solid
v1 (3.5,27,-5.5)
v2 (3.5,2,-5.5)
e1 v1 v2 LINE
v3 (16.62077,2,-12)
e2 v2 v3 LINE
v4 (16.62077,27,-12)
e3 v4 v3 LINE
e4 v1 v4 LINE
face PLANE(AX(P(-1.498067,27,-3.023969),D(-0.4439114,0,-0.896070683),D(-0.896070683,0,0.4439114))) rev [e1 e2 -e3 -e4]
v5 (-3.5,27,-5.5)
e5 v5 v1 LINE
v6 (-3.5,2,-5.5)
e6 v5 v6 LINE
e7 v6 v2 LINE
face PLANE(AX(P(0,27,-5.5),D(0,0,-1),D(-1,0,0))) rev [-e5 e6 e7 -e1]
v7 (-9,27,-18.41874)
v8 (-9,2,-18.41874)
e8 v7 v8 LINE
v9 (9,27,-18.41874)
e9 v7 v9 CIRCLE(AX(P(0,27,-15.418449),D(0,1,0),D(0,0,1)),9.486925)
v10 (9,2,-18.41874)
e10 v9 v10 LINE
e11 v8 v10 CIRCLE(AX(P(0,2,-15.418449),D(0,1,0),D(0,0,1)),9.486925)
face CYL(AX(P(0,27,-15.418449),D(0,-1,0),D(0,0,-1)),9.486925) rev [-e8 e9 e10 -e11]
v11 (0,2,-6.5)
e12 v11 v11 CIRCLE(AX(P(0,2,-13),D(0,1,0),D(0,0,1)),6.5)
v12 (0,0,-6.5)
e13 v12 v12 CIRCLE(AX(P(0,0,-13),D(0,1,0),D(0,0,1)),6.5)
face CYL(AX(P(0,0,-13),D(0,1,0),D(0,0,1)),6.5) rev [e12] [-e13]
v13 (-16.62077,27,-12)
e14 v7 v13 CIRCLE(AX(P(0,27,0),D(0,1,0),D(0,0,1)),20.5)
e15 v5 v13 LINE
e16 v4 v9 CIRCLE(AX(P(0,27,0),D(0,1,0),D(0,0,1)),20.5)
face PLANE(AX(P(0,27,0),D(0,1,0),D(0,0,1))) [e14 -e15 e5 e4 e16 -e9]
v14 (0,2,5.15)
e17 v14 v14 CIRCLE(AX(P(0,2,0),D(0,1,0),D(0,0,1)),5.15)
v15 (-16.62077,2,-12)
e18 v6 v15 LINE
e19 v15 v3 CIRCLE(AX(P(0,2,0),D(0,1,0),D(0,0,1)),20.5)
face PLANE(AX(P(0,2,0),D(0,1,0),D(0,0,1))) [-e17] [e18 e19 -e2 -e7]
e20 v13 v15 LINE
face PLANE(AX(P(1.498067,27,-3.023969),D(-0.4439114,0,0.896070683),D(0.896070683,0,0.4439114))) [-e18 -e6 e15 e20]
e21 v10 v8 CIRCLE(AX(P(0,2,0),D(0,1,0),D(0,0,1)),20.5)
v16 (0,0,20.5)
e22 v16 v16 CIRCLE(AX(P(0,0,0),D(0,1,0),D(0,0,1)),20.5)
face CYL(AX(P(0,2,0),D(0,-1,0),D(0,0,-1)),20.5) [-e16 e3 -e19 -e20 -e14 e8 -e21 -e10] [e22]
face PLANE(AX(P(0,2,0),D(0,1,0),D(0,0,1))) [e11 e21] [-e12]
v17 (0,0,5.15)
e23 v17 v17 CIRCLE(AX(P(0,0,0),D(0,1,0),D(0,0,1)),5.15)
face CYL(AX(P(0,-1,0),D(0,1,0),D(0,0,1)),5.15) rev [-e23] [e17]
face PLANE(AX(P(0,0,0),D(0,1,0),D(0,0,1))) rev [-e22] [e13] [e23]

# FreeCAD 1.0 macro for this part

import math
import FreeCAD as App
import Part
import Sketcher
from FreeCAD import Vector
Q = App.Units.Quantity

doc = App.newDocument("Part")
body = doc.addObject("PartDesign::Body", "Body")

# Sketch on XZ plane
sketch1 = body.newObject("Sketcher::SketchObject", "Sketch")
sketch1.AttachmentSupport = (doc.getObject("XZ_Plane"), [""])
sketch1.MapMode = "FlatFace"
sketch1.addGeometry(Part.Circle(Vector(0, 0, 0), Vector(0, 0, 1), 20.5), False)
sketch1.addConstraint([
    Sketcher.Constraint("Coincident", 0, 3, -1, 1),
    Sketcher.Constraint("Diameter", 0, Q("41 mm")),
])
pad1 = body.newObject("PartDesign::Pad", "Pad")
pad1.Profile = sketch1
pad1.Length = 2
pad1.Reversed = True

# Sketch on XZ plane
sketch2 = body.newObject("Sketcher::SketchObject", "Sketch001")
sketch2.AttachmentSupport = (doc.getObject("XZ_Plane"), [""])
sketch2.MapMode = "FlatFace"
sketch2.AttachmentOffset = App.Placement(Vector(0, 0, -2), App.Rotation())
sketch2.addGeometry(Part.Circle(Vector(0, 0, 0), Vector(0, 0, 1), 5.15), False)
sketch2.addConstraint([
    Sketcher.Constraint("Coincident", 0, 3, -1, 1),
    Sketcher.Constraint("Diameter", 0, Q("10.3 mm")),
])
pocket1 = body.newObject("PartDesign::Pocket", "Pocket")
pocket1.Profile = sketch2
pocket1.Length = 3
pocket1.Reversed = True

# Sketch on XZ plane
sketch3 = body.newObject("Sketcher::SketchObject", "Sketch002")
sketch3.AttachmentSupport = (doc.getObject("XZ_Plane"), [""])
sketch3.MapMode = "FlatFace"
sketch3.AttachmentOffset = App.Placement(Vector(0, 0, -2), App.Rotation())
sketch3.addGeometry(Part.Circle(Vector(0, -13, 0), Vector(0, 0, 1), 6.5), False)
sketch3.addConstraint([
    Sketcher.Constraint("PointOnObject", 0, 3, -2),
    Sketcher.Constraint("Diameter", 0, Q("13 mm")),
    Sketcher.Constraint("DistanceY", 0, 3, -1, 1, Q("13 mm")),
])
pocket2 = body.newObject("PartDesign::Pocket", "Pocket001")
pocket2.Profile = sketch3
pocket2.Length = 2
pocket2.Reversed = True

# Sketch on XZ plane
sketch4 = body.newObject("Sketcher::SketchObject", "Sketch003")
sketch4.AttachmentSupport = (doc.getObject("XZ_Plane"), [""])
sketch4.MapMode = "FlatFace"
sketch4.AttachmentOffset = App.Placement(Vector(0, 0, -2), App.Rotation())
sketch4.addGeometry([
    Part.LineSegment(Vector(-16.62077, -12, 0), Vector(-3.5, -5.5, 0)),  # 0
    Part.LineSegment(Vector(-3.5, -5.5, 0), Vector(3.5, -5.5, 0)),  # 1
    Part.LineSegment(Vector(3.5, -5.5, 0), Vector(16.62077, -12, 0)),  # 2
    Part.ArcOfCircle(Part.Circle(Vector(0, 0, 0), Vector(0, 0, 1), 20.5), math.radians(-63.95835), math.radians(-35.82884)),  # 3
    Part.ArcOfCircle(Part.Circle(Vector(0, -15.418449, 0), Vector(0, 0, 1), 9.486925), math.radians(-18.436619), math.radians(198.436619)),  # 4
    Part.ArcOfCircle(Part.Circle(Vector(0, 0, 0), Vector(0, 0, 1), 20.5), math.radians(-144.17116), math.radians(-116.04165)),  # 5
], False)
sketch4.addConstraint([
    Sketcher.Constraint("Coincident", 0, 2, 1, 1),
    Sketcher.Constraint("Coincident", 1, 2, 2, 1),
    Sketcher.Constraint("Coincident", 2, 2, 3, 2),
    Sketcher.Constraint("Coincident", 3, 1, 4, 1),
    Sketcher.Constraint("Coincident", 4, 2, 5, 2),
    Sketcher.Constraint("Coincident", 5, 1, 0, 1),
    Sketcher.Constraint("Horizontal", 1),
    Sketcher.Constraint("Coincident", 3, 3, -1, 1),
    Sketcher.Constraint("Coincident", 5, 3, -1, 1),
    Sketcher.Constraint("Equal", 3, 5),
    Sketcher.Constraint("PointOnObject", 4, 3, -2),
    Sketcher.Constraint("Horizontal", 2, 2, 5, 1),
    Sketcher.Constraint("Equal", 0, 2),
    Sketcher.Constraint("Radius", 3, Q("20.5 mm")),
    Sketcher.Constraint("DistanceX", 1, 1, 1, 2, Q("7 mm")),
    Sketcher.Constraint("DistanceY", 2, 2, -1, 1, Q("12 mm")),
    Sketcher.Constraint("DistanceX", -1, 1, 3, 1, Q("9 mm")),
    Sketcher.Constraint("DistanceY", 0, 2, -1, 1, Q("5.5 mm")),
    Sketcher.Constraint("Radius", 4, Q("9.486925 mm")),
])
pad2 = body.newObject("PartDesign::Pad", "Pad001")
pad2.Profile = sketch4
pad2.Length = 25
pad2.Reversed = True

doc.recompute()
